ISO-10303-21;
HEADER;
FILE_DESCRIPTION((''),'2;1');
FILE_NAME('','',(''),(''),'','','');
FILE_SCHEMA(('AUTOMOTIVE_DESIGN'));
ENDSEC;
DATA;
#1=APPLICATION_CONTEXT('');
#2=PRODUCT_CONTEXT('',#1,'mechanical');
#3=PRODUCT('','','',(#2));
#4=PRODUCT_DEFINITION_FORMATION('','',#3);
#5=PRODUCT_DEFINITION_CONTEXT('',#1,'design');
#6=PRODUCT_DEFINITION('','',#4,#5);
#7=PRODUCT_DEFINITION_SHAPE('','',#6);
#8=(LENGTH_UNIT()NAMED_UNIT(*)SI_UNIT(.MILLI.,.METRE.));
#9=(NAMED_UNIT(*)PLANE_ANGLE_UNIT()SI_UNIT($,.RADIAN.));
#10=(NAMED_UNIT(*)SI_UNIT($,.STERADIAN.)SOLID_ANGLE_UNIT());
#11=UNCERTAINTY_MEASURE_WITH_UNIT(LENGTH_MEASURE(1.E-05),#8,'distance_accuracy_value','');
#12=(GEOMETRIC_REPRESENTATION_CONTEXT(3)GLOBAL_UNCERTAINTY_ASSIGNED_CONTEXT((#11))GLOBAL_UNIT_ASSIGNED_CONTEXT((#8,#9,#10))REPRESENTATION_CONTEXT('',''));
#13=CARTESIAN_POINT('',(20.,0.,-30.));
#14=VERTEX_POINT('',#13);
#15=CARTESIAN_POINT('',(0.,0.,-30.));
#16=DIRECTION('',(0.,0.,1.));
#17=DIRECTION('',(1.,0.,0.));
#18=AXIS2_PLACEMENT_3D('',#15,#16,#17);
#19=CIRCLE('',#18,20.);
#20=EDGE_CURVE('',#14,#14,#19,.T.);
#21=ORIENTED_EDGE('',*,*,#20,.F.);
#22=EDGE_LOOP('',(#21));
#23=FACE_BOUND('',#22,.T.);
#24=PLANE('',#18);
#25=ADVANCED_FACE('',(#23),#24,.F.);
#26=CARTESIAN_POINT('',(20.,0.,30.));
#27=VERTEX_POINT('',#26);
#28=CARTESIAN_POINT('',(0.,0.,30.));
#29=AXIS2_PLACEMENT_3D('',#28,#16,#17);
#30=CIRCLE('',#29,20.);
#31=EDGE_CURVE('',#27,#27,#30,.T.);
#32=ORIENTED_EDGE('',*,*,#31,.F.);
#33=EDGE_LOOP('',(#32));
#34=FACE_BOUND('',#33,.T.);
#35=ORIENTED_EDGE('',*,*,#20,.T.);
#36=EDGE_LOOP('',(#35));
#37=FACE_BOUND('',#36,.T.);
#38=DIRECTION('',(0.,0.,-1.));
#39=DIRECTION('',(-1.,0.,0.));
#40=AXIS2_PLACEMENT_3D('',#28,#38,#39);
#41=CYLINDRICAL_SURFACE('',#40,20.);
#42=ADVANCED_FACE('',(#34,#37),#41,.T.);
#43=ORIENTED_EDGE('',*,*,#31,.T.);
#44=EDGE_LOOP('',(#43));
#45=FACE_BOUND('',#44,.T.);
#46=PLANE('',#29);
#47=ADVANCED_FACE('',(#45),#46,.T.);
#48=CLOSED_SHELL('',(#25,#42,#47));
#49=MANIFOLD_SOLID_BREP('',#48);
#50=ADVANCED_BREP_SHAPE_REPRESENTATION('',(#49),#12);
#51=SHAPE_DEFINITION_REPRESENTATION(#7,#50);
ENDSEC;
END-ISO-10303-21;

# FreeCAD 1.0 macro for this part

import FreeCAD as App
import Part
import Sketcher

V = App.Vector
Q = App.Units.Quantity

doc = App.newDocument("Part")
body = doc.addObject("PartDesign::Body", "Body")

# Sketch on XY plane
sketch1 = body.newObject("Sketcher::SketchObject", "Sketch")
sketch1.AttachmentSupport = (doc.getObject("XY_Plane"), [""])
sketch1.MapMode = "FlatFace"
sketch1.addGeometry(Part.Circle(V(0, 0, 0), V(0, 0, 1), 20), False)
sketch1.addConstraint(Sketcher.Constraint("Coincident", 0, 3, -1, 1))
sketch1.addConstraint(Sketcher.Constraint("Diameter", 0, Q("40 mm")))
pad1 = body.newObject("PartDesign::Pad", "Pad")
pad1.Profile = sketch1
pad1.Length = 60
pad1.Midplane = True

doc.recompute()
